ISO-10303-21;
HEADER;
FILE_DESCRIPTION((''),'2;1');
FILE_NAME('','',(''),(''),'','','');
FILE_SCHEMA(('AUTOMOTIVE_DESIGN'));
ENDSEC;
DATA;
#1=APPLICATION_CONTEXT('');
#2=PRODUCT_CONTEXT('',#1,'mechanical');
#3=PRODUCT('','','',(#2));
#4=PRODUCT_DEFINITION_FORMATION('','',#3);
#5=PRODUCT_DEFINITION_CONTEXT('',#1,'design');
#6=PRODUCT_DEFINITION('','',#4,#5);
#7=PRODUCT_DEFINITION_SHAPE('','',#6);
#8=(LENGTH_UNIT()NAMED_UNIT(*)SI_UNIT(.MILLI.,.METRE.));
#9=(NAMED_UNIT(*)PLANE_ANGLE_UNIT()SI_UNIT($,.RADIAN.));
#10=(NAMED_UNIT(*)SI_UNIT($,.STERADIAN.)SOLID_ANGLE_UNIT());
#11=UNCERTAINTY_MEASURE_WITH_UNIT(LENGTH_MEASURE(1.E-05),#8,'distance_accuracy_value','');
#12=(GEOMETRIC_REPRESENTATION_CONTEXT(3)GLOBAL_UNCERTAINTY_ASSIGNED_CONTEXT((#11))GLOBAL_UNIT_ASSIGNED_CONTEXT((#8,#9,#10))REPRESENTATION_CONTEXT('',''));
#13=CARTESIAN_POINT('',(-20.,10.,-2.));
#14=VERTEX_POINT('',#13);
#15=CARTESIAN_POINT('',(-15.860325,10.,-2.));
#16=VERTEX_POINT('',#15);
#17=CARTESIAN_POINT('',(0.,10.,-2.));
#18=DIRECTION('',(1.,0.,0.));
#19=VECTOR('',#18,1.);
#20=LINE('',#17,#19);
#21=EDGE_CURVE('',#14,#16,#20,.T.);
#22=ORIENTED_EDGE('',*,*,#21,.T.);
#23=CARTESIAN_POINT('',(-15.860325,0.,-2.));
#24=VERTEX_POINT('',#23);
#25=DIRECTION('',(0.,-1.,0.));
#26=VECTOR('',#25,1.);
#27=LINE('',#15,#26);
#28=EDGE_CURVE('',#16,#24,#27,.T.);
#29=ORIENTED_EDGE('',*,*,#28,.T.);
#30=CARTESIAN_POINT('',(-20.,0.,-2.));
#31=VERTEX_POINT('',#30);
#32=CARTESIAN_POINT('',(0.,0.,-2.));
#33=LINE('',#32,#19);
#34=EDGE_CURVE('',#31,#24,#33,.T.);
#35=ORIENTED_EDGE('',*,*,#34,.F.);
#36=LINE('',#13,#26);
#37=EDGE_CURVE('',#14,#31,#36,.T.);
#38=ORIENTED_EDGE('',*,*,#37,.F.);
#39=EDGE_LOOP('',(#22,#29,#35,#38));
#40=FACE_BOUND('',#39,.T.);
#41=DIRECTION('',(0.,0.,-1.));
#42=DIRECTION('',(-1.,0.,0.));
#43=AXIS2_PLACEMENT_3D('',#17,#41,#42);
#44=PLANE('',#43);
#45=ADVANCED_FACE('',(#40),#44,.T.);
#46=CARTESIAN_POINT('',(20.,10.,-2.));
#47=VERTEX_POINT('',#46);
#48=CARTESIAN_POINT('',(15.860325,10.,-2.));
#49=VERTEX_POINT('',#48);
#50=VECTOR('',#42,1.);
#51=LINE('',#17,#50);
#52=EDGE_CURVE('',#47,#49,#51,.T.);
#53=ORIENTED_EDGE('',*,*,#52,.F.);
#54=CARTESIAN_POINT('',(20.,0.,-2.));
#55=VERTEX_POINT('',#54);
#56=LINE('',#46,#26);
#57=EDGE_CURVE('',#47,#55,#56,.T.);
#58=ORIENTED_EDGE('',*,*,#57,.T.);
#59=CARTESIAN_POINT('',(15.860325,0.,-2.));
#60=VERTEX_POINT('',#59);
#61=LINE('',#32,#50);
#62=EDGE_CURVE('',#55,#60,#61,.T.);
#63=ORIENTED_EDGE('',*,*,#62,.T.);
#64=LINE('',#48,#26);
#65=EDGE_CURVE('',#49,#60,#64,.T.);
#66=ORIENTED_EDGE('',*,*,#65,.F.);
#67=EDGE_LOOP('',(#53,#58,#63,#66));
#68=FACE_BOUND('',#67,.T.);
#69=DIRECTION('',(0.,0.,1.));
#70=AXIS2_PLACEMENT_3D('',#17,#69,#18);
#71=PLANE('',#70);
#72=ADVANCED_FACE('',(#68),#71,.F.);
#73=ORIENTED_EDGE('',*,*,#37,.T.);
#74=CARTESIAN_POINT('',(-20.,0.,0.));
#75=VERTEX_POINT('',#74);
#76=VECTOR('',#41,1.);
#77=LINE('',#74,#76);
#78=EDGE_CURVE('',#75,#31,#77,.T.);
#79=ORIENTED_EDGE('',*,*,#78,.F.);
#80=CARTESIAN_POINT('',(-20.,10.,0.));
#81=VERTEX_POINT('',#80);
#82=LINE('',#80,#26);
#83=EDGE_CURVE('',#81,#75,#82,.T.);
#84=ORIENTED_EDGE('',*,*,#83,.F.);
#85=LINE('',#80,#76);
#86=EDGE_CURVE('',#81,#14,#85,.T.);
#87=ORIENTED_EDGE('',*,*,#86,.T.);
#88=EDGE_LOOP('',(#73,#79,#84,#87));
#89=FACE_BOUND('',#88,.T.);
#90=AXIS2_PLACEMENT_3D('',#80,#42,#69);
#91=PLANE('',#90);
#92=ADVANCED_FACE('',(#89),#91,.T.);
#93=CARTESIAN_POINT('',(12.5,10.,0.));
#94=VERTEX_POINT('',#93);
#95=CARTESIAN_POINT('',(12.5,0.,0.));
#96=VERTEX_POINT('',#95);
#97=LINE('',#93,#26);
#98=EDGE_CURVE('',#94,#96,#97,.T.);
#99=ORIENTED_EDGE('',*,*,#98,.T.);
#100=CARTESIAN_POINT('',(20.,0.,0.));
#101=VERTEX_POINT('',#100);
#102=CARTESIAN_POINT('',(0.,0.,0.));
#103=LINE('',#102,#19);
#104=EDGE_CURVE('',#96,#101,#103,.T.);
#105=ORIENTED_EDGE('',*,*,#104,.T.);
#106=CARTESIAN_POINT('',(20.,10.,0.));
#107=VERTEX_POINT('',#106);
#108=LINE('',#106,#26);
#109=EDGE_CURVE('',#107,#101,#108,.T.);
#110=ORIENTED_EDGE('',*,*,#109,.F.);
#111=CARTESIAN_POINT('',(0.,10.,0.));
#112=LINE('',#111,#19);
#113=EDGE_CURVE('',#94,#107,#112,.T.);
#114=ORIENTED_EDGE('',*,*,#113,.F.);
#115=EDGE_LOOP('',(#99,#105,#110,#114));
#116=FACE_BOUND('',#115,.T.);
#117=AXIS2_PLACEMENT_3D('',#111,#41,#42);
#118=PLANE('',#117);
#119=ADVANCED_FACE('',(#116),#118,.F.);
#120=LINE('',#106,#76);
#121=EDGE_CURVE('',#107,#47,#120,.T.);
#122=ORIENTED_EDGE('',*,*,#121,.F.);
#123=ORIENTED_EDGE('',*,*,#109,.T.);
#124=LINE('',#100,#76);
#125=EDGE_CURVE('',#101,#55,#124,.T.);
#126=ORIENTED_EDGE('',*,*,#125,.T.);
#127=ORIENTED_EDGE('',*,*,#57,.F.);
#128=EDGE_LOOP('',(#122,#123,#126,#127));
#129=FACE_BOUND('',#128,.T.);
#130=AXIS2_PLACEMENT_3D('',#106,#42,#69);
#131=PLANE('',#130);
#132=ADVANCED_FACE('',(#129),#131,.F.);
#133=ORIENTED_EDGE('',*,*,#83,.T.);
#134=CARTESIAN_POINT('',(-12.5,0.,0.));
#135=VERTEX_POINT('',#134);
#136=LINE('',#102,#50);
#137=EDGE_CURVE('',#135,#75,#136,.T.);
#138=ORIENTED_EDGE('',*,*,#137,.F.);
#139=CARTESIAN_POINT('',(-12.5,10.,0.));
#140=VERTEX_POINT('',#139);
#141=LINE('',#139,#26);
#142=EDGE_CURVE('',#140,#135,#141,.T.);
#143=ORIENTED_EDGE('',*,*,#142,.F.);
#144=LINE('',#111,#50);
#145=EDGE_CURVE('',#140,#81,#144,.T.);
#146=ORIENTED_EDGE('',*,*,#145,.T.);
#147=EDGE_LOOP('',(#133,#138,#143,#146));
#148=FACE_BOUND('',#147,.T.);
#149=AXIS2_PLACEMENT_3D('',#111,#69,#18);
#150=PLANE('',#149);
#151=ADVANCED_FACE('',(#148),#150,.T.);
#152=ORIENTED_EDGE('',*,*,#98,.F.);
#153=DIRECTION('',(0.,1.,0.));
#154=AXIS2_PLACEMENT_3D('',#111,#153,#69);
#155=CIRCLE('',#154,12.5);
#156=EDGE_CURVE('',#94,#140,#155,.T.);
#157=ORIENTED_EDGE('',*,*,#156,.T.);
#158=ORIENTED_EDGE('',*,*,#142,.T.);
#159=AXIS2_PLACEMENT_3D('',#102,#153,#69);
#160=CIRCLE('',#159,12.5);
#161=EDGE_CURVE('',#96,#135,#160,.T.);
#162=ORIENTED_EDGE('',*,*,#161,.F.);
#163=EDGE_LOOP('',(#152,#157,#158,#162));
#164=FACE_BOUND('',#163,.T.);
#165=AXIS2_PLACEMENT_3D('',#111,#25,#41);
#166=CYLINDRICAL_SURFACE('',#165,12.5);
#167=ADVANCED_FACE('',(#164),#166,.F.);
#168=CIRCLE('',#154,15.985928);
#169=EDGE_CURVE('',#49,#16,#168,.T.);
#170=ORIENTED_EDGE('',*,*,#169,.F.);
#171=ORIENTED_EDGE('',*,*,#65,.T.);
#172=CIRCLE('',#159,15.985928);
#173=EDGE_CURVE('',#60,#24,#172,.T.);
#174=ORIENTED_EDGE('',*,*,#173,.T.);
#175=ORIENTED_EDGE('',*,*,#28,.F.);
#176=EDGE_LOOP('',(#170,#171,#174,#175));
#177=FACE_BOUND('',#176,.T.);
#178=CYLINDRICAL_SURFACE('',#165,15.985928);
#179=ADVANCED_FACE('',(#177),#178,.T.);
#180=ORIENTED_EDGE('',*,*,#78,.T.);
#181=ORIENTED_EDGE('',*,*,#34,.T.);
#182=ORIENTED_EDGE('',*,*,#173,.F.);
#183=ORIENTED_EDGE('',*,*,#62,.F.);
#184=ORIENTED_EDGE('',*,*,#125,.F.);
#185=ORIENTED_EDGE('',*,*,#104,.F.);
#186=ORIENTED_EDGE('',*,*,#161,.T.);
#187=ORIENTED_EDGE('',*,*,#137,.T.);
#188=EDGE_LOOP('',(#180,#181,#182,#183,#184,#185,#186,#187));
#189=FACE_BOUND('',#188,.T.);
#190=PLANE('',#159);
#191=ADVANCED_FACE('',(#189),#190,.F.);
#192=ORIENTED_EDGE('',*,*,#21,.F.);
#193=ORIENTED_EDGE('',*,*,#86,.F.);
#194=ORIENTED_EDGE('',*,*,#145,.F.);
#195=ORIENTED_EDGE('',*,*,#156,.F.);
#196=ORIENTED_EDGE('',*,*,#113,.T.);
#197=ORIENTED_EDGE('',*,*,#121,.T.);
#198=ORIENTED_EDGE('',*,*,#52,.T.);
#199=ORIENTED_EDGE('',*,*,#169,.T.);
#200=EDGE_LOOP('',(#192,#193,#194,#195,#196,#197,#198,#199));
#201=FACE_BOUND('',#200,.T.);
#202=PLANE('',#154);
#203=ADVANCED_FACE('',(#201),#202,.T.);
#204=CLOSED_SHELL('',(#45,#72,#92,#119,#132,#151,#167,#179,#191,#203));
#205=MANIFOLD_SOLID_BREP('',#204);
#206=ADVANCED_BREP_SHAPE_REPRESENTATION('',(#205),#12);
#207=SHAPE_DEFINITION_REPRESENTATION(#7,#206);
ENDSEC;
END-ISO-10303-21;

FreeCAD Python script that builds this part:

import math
import FreeCAD as App
import Part
import Sketcher
from FreeCAD import Vector
Q = App.Units.Quantity

doc = App.newDocument("Part")
body = doc.addObject("PartDesign::Body", "Body")

# Sketch on XZ plane
sketch1 = body.newObject("Sketcher::SketchObject", "Sketch")
sketch1.AttachmentSupport = (doc.getObject("XZ_Plane"), [""])
sketch1.MapMode = "FlatFace"
sketch1.addGeometry([
    Part.LineSegment(Vector(-20, 0, 0), Vector(-12.5, 0, 0)),  # 0
    Part.ArcOfCircle(Part.Circle(Vector(0, 0, 0), Vector(0, 0, 1), 12.5), math.radians(180), math.radians(360)),  # 1
    Part.LineSegment(Vector(12.5, 0, 0), Vector(20, 0, 0)),  # 2
    Part.LineSegment(Vector(20, 0, 0), Vector(20, -2, 0)),  # 3
    Part.LineSegment(Vector(20, -2, 0), Vector(15.9, -2, 0)),  # 4
    Part.ArcOfCircle(Part.Circle(Vector(0, 0, 0), Vector(0, 0, 1), 16), math.radians(-173), math.radians(-7)),  # 5
    Part.LineSegment(Vector(-15.9, -2, 0), Vector(-20, -2, 0)),  # 6
    Part.LineSegment(Vector(-20, -2, 0), Vector(-20, 0, 0)),  # 7
], False)
sketch1.addConstraint([
    Sketcher.Constraint("Coincident", 0, 2, 1, 1),
    Sketcher.Constraint("Coincident", 1, 2, 2, 1),
    Sketcher.Constraint("Coincident", 2, 2, 3, 1),
    Sketcher.Constraint("Coincident", 3, 2, 4, 1),
    Sketcher.Constraint("Coincident", 4, 2, 5, 2),
    Sketcher.Constraint("Coincident", 5, 1, 6, 1),
    Sketcher.Constraint("Coincident", 6, 2, 7, 1),
    Sketcher.Constraint("Coincident", 7, 2, 0, 1),
    Sketcher.Constraint("Horizontal", 0),
    Sketcher.Constraint("Horizontal", 2),
    Sketcher.Constraint("Vertical", 3),
    Sketcher.Constraint("Horizontal", 4),
    Sketcher.Constraint("Horizontal", 6),
    Sketcher.Constraint("Vertical", 7),
    Sketcher.Constraint("Coincident", 1, 3, -1, 1),
    Sketcher.Constraint("Coincident", 5, 3, -1, 1),
    Sketcher.Constraint("Symmetric", 2, 2, 7, 2, -1, 1),
    Sketcher.Constraint("PointOnObject", 0, 2, -1),
    Sketcher.Constraint("Horizontal", 4, 2, 5, 1),
    Sketcher.Constraint("Radius", 1, Q("12.5 mm")),
    Sketcher.Constraint("DistanceY", 3, 2, 3, 1, Q("2 mm")),
    Sketcher.Constraint("DistanceX", 0, 1, 0, 2, Q("7.5 mm")),
    Sketcher.Constraint("Radius", 5, Q("15.985928 mm")),
])
pad1 = body.newObject("PartDesign::Pad", "Pad")
pad1.Profile = sketch1
pad1.Length = 10
pad1.Reversed = True

doc.recompute()
